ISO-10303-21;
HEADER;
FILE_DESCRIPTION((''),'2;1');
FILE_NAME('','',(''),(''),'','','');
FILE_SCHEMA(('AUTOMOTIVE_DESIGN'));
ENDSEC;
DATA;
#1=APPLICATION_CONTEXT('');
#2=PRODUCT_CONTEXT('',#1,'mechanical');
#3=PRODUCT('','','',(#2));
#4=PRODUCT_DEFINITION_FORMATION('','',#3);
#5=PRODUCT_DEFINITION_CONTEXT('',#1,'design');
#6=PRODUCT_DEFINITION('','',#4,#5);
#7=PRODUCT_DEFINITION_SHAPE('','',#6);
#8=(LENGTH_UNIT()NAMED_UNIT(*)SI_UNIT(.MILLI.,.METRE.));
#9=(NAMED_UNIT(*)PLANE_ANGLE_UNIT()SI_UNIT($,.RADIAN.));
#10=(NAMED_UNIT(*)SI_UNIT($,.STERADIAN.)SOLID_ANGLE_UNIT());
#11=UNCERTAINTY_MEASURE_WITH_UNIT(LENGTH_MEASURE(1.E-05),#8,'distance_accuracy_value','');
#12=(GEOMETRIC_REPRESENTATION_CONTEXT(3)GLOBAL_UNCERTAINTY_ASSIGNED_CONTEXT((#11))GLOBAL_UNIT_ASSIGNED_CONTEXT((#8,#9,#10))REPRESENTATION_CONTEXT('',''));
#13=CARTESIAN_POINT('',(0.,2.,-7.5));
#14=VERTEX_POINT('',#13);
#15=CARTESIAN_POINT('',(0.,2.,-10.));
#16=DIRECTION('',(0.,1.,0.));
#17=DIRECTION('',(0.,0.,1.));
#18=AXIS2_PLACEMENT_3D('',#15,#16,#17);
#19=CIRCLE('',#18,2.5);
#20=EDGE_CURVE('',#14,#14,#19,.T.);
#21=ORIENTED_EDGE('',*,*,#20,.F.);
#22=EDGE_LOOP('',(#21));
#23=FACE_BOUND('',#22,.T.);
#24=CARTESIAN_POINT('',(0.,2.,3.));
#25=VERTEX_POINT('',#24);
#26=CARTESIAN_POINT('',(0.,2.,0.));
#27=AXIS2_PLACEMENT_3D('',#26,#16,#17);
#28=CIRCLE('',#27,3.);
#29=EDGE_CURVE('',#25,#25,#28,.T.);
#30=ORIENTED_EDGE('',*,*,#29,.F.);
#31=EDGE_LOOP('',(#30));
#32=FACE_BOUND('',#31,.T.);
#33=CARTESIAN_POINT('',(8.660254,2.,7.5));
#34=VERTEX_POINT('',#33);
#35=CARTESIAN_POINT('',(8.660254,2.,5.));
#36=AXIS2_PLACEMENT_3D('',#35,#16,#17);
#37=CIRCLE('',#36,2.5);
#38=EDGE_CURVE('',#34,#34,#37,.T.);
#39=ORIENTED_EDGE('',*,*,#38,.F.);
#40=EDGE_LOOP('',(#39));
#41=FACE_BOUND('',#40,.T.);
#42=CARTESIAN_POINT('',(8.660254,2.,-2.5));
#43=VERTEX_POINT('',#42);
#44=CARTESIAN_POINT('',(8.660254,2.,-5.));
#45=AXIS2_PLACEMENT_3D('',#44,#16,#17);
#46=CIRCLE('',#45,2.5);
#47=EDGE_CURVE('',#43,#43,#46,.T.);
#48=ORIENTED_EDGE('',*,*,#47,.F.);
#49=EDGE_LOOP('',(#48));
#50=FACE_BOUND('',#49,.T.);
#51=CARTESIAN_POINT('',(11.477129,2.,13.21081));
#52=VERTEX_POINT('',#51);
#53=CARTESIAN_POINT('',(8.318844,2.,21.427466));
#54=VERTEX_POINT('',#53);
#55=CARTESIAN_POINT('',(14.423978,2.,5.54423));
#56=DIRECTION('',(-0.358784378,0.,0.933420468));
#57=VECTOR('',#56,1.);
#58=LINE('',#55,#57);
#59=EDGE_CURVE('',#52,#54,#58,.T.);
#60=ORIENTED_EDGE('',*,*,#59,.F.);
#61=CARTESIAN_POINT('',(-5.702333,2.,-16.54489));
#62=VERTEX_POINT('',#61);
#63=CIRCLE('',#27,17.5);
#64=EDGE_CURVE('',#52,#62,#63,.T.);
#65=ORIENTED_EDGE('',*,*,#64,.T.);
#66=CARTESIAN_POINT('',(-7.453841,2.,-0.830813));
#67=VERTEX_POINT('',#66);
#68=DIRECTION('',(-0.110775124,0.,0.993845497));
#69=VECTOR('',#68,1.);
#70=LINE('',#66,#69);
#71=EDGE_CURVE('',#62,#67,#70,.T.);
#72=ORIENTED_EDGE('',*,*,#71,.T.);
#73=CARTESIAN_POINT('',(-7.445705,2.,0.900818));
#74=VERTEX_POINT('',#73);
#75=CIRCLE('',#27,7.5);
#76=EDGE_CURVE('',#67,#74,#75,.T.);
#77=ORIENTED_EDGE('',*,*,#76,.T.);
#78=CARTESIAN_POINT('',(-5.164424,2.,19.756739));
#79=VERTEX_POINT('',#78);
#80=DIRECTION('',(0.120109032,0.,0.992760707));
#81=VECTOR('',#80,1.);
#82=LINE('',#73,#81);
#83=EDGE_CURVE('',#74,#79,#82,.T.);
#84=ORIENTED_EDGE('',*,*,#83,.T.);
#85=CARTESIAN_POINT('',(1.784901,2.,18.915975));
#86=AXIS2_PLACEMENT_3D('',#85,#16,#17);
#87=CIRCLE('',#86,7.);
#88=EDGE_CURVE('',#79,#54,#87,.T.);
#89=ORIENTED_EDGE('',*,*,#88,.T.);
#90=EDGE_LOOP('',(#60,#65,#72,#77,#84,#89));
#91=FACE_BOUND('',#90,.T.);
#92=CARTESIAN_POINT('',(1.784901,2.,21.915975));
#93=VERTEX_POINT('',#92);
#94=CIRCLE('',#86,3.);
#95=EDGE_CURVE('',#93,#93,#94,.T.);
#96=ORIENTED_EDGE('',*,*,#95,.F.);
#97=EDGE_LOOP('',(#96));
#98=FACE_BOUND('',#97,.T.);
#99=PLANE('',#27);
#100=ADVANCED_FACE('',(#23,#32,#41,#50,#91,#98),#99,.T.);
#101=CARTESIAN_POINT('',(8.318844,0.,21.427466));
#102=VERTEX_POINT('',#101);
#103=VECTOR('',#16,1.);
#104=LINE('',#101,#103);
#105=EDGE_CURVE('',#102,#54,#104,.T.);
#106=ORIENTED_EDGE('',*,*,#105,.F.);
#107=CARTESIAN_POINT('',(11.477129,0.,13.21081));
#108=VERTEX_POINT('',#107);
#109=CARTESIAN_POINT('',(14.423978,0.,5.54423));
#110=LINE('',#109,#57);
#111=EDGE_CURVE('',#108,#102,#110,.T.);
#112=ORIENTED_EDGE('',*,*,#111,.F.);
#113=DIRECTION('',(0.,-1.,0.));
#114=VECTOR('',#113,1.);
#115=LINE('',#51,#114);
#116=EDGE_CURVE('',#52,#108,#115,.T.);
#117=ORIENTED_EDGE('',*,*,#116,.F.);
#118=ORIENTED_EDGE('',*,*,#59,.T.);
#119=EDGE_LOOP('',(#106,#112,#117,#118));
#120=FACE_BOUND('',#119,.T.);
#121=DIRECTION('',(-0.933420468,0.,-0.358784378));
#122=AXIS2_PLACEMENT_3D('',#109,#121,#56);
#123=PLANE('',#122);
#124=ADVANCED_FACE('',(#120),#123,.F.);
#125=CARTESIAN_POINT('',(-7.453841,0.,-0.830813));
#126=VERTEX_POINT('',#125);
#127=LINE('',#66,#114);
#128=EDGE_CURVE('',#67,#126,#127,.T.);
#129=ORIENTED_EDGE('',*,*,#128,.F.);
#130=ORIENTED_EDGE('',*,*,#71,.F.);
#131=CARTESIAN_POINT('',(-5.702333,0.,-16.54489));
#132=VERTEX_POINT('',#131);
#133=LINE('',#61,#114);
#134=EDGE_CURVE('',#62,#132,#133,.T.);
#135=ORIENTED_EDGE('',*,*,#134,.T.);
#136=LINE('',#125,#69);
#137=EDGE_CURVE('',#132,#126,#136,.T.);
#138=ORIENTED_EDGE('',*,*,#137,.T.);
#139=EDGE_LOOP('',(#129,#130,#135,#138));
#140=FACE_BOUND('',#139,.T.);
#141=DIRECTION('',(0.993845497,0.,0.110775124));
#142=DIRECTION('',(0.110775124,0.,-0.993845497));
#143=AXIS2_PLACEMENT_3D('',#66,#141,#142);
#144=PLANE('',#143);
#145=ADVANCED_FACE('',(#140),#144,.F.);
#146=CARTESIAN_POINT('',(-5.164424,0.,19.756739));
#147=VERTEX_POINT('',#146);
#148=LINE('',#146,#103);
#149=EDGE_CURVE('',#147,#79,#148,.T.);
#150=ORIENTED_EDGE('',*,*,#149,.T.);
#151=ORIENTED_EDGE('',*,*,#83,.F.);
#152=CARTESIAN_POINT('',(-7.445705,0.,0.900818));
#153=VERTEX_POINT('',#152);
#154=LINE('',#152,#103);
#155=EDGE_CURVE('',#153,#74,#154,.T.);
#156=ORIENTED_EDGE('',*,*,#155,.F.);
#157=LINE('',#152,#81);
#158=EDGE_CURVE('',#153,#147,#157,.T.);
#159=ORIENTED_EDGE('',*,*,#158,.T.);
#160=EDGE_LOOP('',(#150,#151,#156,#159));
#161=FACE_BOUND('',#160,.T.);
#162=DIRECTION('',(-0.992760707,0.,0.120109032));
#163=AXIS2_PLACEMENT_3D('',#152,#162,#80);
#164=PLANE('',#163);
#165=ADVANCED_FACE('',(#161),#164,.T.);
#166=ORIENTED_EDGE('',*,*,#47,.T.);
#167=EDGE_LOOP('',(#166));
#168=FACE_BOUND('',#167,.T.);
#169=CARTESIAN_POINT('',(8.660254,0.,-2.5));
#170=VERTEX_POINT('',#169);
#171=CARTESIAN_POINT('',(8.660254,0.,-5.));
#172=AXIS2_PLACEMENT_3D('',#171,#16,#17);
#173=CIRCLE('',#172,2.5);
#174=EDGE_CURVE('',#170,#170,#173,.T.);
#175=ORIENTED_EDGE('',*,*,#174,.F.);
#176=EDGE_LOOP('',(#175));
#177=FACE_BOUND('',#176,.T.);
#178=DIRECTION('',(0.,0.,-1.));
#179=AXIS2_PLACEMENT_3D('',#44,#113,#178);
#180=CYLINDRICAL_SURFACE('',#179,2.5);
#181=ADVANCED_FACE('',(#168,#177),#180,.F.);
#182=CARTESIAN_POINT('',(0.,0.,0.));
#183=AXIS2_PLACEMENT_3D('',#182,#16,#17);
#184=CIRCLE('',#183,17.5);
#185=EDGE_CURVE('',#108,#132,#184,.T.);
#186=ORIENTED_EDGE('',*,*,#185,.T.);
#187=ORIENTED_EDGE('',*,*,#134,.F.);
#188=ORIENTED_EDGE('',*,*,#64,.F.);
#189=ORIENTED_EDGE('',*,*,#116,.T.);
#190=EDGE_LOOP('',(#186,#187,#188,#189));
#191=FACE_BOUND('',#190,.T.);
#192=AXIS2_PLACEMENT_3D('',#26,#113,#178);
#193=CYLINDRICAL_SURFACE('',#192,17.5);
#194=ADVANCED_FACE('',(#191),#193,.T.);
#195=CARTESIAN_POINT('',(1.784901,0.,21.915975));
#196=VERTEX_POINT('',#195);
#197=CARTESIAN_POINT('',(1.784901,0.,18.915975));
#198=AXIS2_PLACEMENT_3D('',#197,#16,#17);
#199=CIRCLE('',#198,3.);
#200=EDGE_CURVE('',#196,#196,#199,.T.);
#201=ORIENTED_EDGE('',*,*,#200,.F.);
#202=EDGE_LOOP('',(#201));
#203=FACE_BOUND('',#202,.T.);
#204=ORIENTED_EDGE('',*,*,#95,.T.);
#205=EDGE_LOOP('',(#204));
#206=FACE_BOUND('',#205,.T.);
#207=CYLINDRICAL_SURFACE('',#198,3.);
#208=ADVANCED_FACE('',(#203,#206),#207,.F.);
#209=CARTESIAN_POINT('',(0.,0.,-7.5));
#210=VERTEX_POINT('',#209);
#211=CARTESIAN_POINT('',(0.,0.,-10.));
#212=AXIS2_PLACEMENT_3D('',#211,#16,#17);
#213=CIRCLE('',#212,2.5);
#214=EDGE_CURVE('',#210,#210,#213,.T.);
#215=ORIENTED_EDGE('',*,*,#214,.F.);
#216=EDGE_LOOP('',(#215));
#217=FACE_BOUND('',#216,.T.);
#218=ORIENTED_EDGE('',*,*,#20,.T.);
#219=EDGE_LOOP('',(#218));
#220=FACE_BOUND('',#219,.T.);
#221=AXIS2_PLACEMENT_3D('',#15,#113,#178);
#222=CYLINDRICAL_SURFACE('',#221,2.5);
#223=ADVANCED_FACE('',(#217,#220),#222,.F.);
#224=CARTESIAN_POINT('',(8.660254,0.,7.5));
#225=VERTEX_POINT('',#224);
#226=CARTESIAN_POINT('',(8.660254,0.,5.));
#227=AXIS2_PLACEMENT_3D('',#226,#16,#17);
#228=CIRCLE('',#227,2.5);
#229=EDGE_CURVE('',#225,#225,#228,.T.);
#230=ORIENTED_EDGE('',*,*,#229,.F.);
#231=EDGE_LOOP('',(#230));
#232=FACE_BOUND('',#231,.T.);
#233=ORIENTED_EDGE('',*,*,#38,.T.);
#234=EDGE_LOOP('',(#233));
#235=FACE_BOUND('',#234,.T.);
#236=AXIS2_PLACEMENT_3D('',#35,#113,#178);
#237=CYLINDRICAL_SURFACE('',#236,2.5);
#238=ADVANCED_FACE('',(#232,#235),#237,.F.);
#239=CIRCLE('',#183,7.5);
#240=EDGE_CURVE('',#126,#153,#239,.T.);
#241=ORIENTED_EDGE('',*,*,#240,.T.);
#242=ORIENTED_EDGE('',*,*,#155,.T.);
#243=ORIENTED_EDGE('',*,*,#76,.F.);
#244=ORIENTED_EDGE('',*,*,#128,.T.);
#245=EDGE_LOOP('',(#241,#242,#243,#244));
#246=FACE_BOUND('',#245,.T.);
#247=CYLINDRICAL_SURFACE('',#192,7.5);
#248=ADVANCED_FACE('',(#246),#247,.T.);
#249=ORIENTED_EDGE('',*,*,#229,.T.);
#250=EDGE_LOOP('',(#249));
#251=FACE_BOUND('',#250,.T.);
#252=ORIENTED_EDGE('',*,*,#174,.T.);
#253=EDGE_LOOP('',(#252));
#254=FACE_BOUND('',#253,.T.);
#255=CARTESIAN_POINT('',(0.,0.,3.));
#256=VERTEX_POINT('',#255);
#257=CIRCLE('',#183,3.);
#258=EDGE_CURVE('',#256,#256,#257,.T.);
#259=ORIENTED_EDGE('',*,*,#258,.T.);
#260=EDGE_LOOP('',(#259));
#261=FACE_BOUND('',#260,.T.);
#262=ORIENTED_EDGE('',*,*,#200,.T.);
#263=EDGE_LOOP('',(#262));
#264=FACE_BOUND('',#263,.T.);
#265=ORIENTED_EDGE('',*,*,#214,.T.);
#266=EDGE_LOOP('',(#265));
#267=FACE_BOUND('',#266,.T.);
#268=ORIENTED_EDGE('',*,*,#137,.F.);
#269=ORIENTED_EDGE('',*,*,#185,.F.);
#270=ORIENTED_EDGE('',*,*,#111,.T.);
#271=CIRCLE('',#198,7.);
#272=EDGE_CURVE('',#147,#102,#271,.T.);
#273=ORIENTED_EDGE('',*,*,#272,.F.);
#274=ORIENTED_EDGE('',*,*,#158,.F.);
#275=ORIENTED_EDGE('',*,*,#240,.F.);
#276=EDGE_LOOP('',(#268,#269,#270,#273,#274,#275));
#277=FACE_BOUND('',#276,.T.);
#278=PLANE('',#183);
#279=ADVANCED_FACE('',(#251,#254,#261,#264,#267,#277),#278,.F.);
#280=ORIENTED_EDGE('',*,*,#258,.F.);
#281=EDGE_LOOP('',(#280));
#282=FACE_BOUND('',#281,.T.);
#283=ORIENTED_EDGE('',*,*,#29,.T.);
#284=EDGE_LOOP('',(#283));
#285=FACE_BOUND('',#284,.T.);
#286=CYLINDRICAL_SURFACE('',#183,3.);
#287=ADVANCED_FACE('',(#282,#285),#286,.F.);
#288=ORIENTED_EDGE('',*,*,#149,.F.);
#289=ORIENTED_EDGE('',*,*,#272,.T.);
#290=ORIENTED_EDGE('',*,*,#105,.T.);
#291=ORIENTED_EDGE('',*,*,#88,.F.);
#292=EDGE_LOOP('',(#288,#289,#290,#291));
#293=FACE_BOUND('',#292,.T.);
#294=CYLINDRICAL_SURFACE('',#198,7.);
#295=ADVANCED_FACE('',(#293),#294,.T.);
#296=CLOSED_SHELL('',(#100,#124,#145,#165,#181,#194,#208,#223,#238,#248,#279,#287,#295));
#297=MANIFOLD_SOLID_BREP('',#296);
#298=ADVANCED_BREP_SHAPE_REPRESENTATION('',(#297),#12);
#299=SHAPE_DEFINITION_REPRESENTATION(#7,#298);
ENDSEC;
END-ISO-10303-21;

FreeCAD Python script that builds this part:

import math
import FreeCAD as App
import Part
import Sketcher
Q = App.Units.Quantity

doc = App.newDocument("Part")
body = doc.addObject("PartDesign::Body", "Body")

sketch1 = body.newObject("Sketcher::SketchObject", "Sketch")
sketch1.AttachmentSupport = (doc.getObject("XZ_Plane"), [""])
sketch1.MapMode = "FlatFace"
sketch1.addGeometry([
    Part.ArcOfCircle(Part.Circle(App.Vector(0, 0, 0), App.Vector(0, 0, 1), 7.5), math.radians(114), math.radians(186)),
    Part.LineSegment(App.Vector(-3, 6.9, 0), App.Vector(11.5, 13.2, 0)),
    Part.ArcOfCircle(Part.Circle(App.Vector(0, 0, 0), App.Vector(0, 0, 1), 17.5), math.radians(0), math.radians(49)),
    Part.ArcOfCircle(Part.Circle(App.Vector(0, 0, 0), App.Vector(0, 0, 1), 17.5), math.radians(-109), math.radians(0)),
    Part.LineSegment(App.Vector(-5.7, -16.5, 0), App.Vector(-7.5, -0.8, 0)),
    Part.ArcOfCircle(Part.Circle(App.Vector(8.7, 5, 0), App.Vector(0, 0, 1), 2.5), math.radians(-150), math.radians(0)),
    Part.ArcOfCircle(Part.Circle(App.Vector(8.7, 5, 0), App.Vector(0, 0, 1), 2.5), math.radians(0), math.radians(210)),
    Part.ArcOfCircle(Part.Circle(App.Vector(8.7, -5, 0), App.Vector(0, 0, 1), 2.5), math.radians(150), math.radians(360)),
    Part.ArcOfCircle(Part.Circle(App.Vector(8.7, -5, 0), App.Vector(0, 0, 1), 2.5), math.radians(0), math.radians(150)),
    Part.ArcOfCircle(Part.Circle(App.Vector(0, -10, 0), App.Vector(0, 0, 1), 2.5), math.radians(90), math.radians(360)),
    Part.ArcOfCircle(Part.Circle(App.Vector(0, -10, 0), App.Vector(0, 0, 1), 2.5), math.radians(0), math.radians(90)),
], False)
sketch1.addConstraint([
    Sketcher.Constraint("Tangent", 0, 1, 1, 1),
    Sketcher.Constraint("Coincident", 1, 2, 2, 2),
    Sketcher.Constraint("Tangent", 2, 1, 3, 2),
    Sketcher.Constraint("Coincident", 3, 1, 4, 1),
    Sketcher.Constraint("Tangent", 4, 2, 0, 2),
    Sketcher.Constraint("Tangent", 5, 1, 6, 2),
    Sketcher.Constraint("Coincident", 6, 1, 5, 2),
    Sketcher.Constraint("Tangent", 7, 1, 8, 2),
    Sketcher.Constraint("Coincident", 8, 1, 7, 2),
    Sketcher.Constraint("Tangent", 9, 1, 10, 2),
    Sketcher.Constraint("Coincident", 10, 1, 9, 2),
    Sketcher.Constraint("Coincident", 0, 3, -1, 1),
    Sketcher.Constraint("Coincident", 2, 3, -1, 1),
    Sketcher.Constraint("Equal", 2, 3),
    Sketcher.Constraint("Equal", 6, 7),
    Sketcher.Constraint("Equal", 8, 9),
    Sketcher.Constraint("Symmetric", 5, 3, 7, 3, -1),
    Sketcher.Constraint("PointOnObject", 9, 3, -2),
    Sketcher.Constraint("PointOnObject", 2, 1, -1),
    Sketcher.Constraint("PointOnObject", 9, 1, -2),
    Sketcher.Constraint("Horizontal", 5, 3, 6, 1),
    Sketcher.Constraint("Horizontal", 7, 3, 8, 1),
    Sketcher.Constraint("Horizontal", 9, 3, 10, 1),
    Sketcher.Constraint("Vertical", 5, 1, 7, 1),
    Sketcher.Constraint("Radius", 0, Q("7.5 mm")),
    Sketcher.Constraint("Radius", 2, Q("17.5 mm")),
    Sketcher.Constraint("Radius", 5, Q("2.5 mm")),
    Sketcher.Constraint("DistanceY", -1, 1, 5, 3, Q("5 mm")),
    Sketcher.Constraint("DistanceY", 9, 3, -1, 1, Q("10 mm")),
    Sketcher.Constraint("Angle", 1, Q("23.64 deg")),
    Sketcher.Constraint("Angle", 4, Q("96.36 deg")),
    Sketcher.Constraint("DistanceY", -1, 1, 5, 1, Q("3.75 mm")),
    Sketcher.Constraint("DistanceX", -1, 1, 5, 1, Q("6.495191 mm")),
])
pad1 = body.newObject("PartDesign::Pad", "Pad")
pad1.Profile = sketch1
pad1.Length = 2
pad1.Reversed = True

sketch2 = body.newObject("Sketcher::SketchObject", "Sketch001")
sketch2.AttachmentSupport = (doc.getObject("XZ_Plane"), [""])
sketch2.MapMode = "FlatFace"
sketch2.addGeometry([
    Part.ArcOfCircle(Part.Circle(App.Vector(0, 0, 0), App.Vector(0, 0, 1), 7.5), math.radians(114), math.radians(173)),
    Part.LineSegment(App.Vector(-7.4, 0.9, 0), App.Vector(-5.2, 19.8, 0)),
    Part.ArcOfCircle(Part.Circle(App.Vector(1.8, 18.9, 0), App.Vector(0, 0, 1), 7), math.radians(21), math.radians(173)),
    Part.LineSegment(App.Vector(8.3, 21.4, 0), App.Vector(11.5, 13.2, 0)),
    Part.LineSegment(App.Vector(11.5, 13.2, 0), App.Vector(-3, 6.9, 0)),
    Part.Circle(App.Vector(1.8, 18.9, 0), App.Vector(0, 0, 1), 3),
], False)
sketch2.addConstraint([
    Sketcher.Constraint("Tangent", 0, 2, 1, 1),
    Sketcher.Constraint("Tangent", 1, 2, 2, 2),
    Sketcher.Constraint("Tangent", 2, 1, 3, 1),
    Sketcher.Constraint("Coincident", 3, 2, 4, 1),
    Sketcher.Constraint("Tangent", 4, 2, 0, 1),
    Sketcher.Constraint("Coincident", 0, 3, -1, 1),
    Sketcher.Constraint("Coincident", 5, 3, 2, 3),
    Sketcher.Constraint("Diameter", 5, Q("6 mm")),
    Sketcher.Constraint("Radius", 2, Q("7 mm")),
    Sketcher.Constraint("Radius", 0, Q("7.5 mm")),
    Sketcher.Constraint("Angle", 4, Q("-156.36 deg")),
    Sketcher.Constraint("DistanceX", -1, 1, 2, 3, Q("1.784901 mm")),
    Sketcher.Constraint("Distance", 1, Q("18.99342 mm")),
    Sketcher.Constraint("Distance", 3, Q("8.802738 mm")),
])
pad2 = body.newObject("PartDesign::Pad", "Pad001")
pad2.Profile = sketch2
pad2.Length = 2
pad2.Reversed = True

sketch3 = body.newObject("Sketcher::SketchObject", "Sketch002")
sketch3.AttachmentSupport = (doc.getObject("XZ_Plane"), [""])
sketch3.MapMode = "FlatFace"
sketch3.AttachmentOffset = App.Placement(App.Vector(0, 0, -2), App.Rotation())
sketch3.addGeometry(Part.Circle(App.Vector(0, 0, 0), App.Vector(0, 0, 1), 3), False)
sketch3.addConstraint([
    Sketcher.Constraint("Coincident", 0, 3, -1, 1),
    Sketcher.Constraint("Diameter", 0, Q("6 mm")),
])
pocket1 = body.newObject("PartDesign::Pocket", "Pocket")
pocket1.Profile = sketch3
pocket1.Length = 2
pocket1.Reversed = True

doc.recompute()
